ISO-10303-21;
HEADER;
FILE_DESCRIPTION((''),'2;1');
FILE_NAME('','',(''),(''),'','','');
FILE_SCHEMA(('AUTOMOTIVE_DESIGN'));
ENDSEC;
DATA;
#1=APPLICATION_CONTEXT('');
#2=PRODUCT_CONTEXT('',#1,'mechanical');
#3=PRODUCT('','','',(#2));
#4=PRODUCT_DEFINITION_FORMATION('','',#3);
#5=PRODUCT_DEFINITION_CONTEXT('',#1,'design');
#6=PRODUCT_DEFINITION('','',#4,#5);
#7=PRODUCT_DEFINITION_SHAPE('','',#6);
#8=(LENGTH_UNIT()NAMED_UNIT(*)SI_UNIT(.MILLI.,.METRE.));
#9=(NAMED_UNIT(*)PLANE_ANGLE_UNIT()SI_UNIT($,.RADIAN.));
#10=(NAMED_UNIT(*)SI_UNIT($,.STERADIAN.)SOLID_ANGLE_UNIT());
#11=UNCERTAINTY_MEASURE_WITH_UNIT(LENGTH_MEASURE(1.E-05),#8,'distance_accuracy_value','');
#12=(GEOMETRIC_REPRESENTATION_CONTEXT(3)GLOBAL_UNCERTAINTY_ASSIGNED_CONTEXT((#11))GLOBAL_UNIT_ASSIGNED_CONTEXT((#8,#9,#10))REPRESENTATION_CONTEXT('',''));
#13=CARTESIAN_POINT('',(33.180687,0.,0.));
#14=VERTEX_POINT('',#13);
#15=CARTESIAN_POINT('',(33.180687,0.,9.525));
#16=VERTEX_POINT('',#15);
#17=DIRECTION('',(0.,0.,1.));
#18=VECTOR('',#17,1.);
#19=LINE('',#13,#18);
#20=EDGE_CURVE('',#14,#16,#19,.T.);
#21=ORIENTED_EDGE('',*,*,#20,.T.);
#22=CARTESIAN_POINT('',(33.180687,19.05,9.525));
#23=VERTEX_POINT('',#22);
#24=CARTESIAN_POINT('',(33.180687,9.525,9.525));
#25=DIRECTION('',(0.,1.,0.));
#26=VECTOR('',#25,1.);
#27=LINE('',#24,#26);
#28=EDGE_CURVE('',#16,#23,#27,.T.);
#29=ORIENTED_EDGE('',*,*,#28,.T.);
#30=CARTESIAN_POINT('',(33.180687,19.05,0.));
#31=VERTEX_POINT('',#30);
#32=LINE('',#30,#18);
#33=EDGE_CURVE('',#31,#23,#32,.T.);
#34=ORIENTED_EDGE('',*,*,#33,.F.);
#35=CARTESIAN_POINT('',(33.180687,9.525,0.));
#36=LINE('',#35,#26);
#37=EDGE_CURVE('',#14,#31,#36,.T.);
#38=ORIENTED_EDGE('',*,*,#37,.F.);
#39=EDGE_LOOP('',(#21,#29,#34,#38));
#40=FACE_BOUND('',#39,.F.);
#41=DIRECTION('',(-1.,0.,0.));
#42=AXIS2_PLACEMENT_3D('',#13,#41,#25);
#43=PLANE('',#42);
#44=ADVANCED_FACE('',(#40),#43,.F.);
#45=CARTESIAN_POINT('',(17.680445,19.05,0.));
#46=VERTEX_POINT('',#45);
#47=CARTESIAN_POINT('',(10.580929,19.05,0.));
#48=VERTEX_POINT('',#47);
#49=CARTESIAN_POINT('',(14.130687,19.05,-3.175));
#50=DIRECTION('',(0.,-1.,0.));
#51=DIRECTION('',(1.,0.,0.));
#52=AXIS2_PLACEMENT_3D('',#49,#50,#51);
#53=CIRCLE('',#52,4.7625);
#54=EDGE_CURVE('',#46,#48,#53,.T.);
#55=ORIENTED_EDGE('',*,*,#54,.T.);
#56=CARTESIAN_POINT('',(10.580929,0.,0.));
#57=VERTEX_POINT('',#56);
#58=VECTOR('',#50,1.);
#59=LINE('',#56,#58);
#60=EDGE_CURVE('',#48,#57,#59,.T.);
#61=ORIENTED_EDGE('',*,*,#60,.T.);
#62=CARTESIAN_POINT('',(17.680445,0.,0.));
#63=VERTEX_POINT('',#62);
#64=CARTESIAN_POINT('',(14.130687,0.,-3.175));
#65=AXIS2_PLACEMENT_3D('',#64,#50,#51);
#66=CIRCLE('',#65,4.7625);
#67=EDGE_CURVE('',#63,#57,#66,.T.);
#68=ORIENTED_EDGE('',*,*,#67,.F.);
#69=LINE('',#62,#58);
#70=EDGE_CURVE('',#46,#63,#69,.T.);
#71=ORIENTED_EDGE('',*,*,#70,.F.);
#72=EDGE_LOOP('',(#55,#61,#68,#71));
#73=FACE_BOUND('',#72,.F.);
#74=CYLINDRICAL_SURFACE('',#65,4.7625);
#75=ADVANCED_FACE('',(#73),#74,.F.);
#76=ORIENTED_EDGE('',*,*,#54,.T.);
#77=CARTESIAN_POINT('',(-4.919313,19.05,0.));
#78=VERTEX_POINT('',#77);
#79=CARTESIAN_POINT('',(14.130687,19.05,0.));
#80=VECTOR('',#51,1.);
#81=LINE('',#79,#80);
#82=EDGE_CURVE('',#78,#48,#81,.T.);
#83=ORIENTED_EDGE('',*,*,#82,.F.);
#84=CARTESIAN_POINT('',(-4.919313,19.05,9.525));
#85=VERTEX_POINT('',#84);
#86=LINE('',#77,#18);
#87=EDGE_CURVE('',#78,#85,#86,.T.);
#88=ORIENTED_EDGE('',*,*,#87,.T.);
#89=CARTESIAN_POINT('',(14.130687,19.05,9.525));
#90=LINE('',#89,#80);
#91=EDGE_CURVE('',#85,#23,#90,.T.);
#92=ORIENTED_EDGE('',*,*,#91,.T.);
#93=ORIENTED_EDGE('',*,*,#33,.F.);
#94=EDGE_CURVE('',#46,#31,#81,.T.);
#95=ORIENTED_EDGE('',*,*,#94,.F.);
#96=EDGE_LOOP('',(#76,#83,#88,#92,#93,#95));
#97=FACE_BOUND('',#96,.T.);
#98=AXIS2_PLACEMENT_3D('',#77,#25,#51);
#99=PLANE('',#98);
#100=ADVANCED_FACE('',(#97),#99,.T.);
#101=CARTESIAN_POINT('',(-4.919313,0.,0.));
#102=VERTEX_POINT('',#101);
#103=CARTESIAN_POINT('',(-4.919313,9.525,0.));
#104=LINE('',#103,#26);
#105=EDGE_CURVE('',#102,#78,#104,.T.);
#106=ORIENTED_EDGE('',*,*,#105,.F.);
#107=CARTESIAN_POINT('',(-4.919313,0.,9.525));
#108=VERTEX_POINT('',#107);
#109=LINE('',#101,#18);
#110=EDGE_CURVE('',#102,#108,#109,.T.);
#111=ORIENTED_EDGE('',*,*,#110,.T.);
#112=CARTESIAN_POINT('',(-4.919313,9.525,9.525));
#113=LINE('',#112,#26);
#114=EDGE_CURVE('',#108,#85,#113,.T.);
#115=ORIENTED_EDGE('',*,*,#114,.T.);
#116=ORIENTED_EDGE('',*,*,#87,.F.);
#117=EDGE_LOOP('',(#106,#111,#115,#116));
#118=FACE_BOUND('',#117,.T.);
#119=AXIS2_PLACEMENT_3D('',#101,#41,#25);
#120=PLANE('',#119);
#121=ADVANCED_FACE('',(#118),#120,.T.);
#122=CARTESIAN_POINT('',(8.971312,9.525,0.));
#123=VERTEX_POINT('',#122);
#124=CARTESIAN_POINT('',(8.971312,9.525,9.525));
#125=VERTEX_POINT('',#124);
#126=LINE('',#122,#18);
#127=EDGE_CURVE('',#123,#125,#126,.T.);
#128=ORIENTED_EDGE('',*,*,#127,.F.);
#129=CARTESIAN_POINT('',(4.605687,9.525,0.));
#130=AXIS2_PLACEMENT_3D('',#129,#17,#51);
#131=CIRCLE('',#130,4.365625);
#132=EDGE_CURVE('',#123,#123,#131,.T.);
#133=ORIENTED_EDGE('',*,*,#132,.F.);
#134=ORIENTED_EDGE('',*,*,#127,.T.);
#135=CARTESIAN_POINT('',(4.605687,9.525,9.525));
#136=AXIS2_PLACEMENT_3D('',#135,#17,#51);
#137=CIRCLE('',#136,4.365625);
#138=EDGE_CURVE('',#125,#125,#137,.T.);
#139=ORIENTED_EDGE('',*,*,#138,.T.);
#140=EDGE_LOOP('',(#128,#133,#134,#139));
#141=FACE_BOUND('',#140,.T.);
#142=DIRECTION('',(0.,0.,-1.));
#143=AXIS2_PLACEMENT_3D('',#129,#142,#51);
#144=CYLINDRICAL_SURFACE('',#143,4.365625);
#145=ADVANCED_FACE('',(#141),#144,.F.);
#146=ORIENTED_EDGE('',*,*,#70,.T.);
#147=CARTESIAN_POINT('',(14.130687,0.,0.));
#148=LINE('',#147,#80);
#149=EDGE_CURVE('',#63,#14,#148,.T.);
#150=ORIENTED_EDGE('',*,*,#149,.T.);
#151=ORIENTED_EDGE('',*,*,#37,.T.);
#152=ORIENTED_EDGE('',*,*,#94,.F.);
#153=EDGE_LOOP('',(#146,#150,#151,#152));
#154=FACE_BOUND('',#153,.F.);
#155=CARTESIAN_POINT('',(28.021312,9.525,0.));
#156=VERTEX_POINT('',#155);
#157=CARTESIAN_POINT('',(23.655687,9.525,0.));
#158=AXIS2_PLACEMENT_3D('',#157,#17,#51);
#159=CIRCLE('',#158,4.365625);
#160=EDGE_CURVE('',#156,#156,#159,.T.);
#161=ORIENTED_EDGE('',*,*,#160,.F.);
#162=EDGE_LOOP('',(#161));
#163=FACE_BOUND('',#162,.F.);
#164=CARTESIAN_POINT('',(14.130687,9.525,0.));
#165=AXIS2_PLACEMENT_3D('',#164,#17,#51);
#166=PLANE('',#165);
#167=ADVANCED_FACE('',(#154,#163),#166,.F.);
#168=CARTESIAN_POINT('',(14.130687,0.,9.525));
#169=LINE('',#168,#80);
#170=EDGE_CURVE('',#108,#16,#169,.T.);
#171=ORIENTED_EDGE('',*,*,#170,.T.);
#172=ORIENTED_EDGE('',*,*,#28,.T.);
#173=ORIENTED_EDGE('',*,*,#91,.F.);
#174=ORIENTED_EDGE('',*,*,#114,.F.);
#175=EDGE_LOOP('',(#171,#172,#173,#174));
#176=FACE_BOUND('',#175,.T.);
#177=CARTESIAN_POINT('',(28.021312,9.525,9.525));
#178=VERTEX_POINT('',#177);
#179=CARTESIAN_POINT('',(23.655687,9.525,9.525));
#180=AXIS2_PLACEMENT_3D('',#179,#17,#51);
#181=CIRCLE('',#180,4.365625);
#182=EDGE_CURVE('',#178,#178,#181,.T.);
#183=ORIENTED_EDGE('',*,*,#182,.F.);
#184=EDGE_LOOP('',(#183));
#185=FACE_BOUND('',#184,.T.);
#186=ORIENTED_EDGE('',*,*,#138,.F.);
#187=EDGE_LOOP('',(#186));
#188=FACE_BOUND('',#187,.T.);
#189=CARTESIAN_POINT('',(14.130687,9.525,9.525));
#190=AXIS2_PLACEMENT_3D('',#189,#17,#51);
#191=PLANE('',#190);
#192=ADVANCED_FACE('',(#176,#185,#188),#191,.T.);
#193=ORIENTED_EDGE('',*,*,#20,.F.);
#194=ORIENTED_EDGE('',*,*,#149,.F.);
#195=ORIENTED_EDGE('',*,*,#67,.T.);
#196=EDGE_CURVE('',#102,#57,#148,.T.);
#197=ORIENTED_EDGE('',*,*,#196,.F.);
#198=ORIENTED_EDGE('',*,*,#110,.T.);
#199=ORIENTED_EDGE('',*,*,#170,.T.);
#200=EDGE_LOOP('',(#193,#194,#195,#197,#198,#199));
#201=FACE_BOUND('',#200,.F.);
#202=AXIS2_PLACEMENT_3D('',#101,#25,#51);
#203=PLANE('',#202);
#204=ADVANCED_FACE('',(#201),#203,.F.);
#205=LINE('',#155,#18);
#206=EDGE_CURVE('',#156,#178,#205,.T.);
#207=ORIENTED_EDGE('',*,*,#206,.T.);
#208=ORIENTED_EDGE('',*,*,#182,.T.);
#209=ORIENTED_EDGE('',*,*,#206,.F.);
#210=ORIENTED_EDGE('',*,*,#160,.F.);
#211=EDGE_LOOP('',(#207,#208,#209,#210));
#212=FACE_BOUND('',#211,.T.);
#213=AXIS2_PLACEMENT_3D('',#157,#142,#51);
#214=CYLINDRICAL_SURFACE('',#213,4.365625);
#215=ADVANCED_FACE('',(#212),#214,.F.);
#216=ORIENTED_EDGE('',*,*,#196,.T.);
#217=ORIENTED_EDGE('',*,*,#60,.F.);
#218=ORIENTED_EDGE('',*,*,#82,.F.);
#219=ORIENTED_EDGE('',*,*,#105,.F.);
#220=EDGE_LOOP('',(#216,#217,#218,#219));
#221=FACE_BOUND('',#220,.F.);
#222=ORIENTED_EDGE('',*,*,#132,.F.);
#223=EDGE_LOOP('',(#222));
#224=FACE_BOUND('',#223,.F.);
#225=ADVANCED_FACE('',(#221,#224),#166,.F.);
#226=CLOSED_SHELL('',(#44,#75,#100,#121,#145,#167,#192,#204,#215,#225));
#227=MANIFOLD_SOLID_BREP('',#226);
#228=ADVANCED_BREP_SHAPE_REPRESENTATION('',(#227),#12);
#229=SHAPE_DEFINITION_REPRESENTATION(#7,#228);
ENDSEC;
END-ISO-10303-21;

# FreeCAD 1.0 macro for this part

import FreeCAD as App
import Part
import Sketcher
Q = App.Units.Quantity

doc = App.newDocument("Part")
params = doc.addObject("Spreadsheet::Sheet", "Params")
for row, (alias, value) in enumerate([
    ("sketch1_diameter", "0.34375 in"),
    ("sketch1_width", "1.5 in"),
    ("sketch1_height", "0.75 in"),
    ("pad1_length", "0.375 in"),
    ("sketch2_diameter", "0.375 in"),
    ("pocket1_length", "1 in"),
], start=1):
    params.set(f"A{row}", alias)
    params.set(f"B{row}", "=" + value)
    params.setAlias(f"B{row}", alias)

body = doc.addObject("PartDesign::Body", "Body")

sketch1 = body.newObject("Sketcher::SketchObject", "Sketch")
sketch1.AttachmentSupport = (doc.getObject("XY_Plane"), [""])
sketch1.MapMode = "FlatFace"
sketch1.addGeometry([
    Part.LineSegment(App.Vector(-4.9, 19.1, 0), App.Vector(-4.9, 0, 0)),
    Part.LineSegment(App.Vector(-4.9, 0, 0), App.Vector(33.2, 0, 0)),
    Part.LineSegment(App.Vector(33.2, 0, 0), App.Vector(33.2, 19.1, 0)),
    Part.LineSegment(App.Vector(33.2, 19.1, 0), App.Vector(-4.9, 19.1, 0)),
    Part.Circle(App.Vector(4.6, 9.5, 0), App.Vector(0, 0, 1), 4.4),
    Part.Circle(App.Vector(23.7, 9.5, 0), App.Vector(0, 0, 1), 4.4),
], False)
sketch1.addConstraint([
    Sketcher.Constraint("Coincident", 0, 2, 1, 1),
    Sketcher.Constraint("Coincident", 1, 2, 2, 1),
    Sketcher.Constraint("Coincident", 2, 2, 3, 1),
    Sketcher.Constraint("Coincident", 3, 2, 0, 1),
    Sketcher.Constraint("Vertical", 0),
    Sketcher.Constraint("Horizontal", 1),
    Sketcher.Constraint("Vertical", 2),
    Sketcher.Constraint("Horizontal", 3),
    Sketcher.Constraint("Equal", 4, 5),
    Sketcher.Constraint("PointOnObject", 0, 2, -1),
    Sketcher.Constraint("Horizontal", 4, 3, 5, 3),
    Sketcher.Constraint("Diameter", 4, Q("0.34375 in")),
    Sketcher.Constraint("DistanceX", 1, 1, 1, 2, Q("1.5 in")),
    Sketcher.Constraint("DistanceY", 0, 2, 0, 1, Q("0.75 in")),
    Sketcher.Constraint("DistanceX", 4, 3, 5, 3, Q("0.75 in")),
    Sketcher.Constraint("DistanceY", -1, 1, 4, 3, Q("0.375 in")),
    Sketcher.Constraint("DistanceX", 0, 2, 4, 3, Q("0.375 in")),
    Sketcher.Constraint("DistanceX", -1, 1, 4, 3, 4.605687),
])
sketch1.setExpression("Constraints[11]", "Params.sketch1_diameter")
sketch1.setExpression("Constraints[12]", "Params.sketch1_width")
sketch1.setExpression("Constraints[13]", "Params.sketch1_height")
pad1 = body.newObject("PartDesign::Pad", "Pad")
pad1.Profile = sketch1
pad1.setExpression("Length", "Params.pad1_length")

sketch2 = body.newObject("Sketcher::SketchObject", "Sketch001")
sketch2.AttachmentSupport = (doc.getObject("XZ_Plane"), [""])
sketch2.MapMode = "FlatFace"
sketch2.addGeometry(Part.Circle(App.Vector(14.1, -3.2, 0), App.Vector(0, 0, 1), 4.8), False)
sketch2.addConstraint([
    Sketcher.Constraint("Diameter", 0, Q("0.375 in")),
    Sketcher.Constraint("DistanceY", 0, 3, -1, 1, Q("0.125 in")),
    Sketcher.Constraint("DistanceX", -1, 1, 0, 3, 14.130687),
])
sketch2.setExpression("Constraints[0]", "Params.sketch2_diameter")
pocket1 = body.newObject("PartDesign::Pocket", "Pocket")
pocket1.Profile = sketch2
pocket1.setExpression("Length", "Params.pocket1_length")

doc.recompute()
